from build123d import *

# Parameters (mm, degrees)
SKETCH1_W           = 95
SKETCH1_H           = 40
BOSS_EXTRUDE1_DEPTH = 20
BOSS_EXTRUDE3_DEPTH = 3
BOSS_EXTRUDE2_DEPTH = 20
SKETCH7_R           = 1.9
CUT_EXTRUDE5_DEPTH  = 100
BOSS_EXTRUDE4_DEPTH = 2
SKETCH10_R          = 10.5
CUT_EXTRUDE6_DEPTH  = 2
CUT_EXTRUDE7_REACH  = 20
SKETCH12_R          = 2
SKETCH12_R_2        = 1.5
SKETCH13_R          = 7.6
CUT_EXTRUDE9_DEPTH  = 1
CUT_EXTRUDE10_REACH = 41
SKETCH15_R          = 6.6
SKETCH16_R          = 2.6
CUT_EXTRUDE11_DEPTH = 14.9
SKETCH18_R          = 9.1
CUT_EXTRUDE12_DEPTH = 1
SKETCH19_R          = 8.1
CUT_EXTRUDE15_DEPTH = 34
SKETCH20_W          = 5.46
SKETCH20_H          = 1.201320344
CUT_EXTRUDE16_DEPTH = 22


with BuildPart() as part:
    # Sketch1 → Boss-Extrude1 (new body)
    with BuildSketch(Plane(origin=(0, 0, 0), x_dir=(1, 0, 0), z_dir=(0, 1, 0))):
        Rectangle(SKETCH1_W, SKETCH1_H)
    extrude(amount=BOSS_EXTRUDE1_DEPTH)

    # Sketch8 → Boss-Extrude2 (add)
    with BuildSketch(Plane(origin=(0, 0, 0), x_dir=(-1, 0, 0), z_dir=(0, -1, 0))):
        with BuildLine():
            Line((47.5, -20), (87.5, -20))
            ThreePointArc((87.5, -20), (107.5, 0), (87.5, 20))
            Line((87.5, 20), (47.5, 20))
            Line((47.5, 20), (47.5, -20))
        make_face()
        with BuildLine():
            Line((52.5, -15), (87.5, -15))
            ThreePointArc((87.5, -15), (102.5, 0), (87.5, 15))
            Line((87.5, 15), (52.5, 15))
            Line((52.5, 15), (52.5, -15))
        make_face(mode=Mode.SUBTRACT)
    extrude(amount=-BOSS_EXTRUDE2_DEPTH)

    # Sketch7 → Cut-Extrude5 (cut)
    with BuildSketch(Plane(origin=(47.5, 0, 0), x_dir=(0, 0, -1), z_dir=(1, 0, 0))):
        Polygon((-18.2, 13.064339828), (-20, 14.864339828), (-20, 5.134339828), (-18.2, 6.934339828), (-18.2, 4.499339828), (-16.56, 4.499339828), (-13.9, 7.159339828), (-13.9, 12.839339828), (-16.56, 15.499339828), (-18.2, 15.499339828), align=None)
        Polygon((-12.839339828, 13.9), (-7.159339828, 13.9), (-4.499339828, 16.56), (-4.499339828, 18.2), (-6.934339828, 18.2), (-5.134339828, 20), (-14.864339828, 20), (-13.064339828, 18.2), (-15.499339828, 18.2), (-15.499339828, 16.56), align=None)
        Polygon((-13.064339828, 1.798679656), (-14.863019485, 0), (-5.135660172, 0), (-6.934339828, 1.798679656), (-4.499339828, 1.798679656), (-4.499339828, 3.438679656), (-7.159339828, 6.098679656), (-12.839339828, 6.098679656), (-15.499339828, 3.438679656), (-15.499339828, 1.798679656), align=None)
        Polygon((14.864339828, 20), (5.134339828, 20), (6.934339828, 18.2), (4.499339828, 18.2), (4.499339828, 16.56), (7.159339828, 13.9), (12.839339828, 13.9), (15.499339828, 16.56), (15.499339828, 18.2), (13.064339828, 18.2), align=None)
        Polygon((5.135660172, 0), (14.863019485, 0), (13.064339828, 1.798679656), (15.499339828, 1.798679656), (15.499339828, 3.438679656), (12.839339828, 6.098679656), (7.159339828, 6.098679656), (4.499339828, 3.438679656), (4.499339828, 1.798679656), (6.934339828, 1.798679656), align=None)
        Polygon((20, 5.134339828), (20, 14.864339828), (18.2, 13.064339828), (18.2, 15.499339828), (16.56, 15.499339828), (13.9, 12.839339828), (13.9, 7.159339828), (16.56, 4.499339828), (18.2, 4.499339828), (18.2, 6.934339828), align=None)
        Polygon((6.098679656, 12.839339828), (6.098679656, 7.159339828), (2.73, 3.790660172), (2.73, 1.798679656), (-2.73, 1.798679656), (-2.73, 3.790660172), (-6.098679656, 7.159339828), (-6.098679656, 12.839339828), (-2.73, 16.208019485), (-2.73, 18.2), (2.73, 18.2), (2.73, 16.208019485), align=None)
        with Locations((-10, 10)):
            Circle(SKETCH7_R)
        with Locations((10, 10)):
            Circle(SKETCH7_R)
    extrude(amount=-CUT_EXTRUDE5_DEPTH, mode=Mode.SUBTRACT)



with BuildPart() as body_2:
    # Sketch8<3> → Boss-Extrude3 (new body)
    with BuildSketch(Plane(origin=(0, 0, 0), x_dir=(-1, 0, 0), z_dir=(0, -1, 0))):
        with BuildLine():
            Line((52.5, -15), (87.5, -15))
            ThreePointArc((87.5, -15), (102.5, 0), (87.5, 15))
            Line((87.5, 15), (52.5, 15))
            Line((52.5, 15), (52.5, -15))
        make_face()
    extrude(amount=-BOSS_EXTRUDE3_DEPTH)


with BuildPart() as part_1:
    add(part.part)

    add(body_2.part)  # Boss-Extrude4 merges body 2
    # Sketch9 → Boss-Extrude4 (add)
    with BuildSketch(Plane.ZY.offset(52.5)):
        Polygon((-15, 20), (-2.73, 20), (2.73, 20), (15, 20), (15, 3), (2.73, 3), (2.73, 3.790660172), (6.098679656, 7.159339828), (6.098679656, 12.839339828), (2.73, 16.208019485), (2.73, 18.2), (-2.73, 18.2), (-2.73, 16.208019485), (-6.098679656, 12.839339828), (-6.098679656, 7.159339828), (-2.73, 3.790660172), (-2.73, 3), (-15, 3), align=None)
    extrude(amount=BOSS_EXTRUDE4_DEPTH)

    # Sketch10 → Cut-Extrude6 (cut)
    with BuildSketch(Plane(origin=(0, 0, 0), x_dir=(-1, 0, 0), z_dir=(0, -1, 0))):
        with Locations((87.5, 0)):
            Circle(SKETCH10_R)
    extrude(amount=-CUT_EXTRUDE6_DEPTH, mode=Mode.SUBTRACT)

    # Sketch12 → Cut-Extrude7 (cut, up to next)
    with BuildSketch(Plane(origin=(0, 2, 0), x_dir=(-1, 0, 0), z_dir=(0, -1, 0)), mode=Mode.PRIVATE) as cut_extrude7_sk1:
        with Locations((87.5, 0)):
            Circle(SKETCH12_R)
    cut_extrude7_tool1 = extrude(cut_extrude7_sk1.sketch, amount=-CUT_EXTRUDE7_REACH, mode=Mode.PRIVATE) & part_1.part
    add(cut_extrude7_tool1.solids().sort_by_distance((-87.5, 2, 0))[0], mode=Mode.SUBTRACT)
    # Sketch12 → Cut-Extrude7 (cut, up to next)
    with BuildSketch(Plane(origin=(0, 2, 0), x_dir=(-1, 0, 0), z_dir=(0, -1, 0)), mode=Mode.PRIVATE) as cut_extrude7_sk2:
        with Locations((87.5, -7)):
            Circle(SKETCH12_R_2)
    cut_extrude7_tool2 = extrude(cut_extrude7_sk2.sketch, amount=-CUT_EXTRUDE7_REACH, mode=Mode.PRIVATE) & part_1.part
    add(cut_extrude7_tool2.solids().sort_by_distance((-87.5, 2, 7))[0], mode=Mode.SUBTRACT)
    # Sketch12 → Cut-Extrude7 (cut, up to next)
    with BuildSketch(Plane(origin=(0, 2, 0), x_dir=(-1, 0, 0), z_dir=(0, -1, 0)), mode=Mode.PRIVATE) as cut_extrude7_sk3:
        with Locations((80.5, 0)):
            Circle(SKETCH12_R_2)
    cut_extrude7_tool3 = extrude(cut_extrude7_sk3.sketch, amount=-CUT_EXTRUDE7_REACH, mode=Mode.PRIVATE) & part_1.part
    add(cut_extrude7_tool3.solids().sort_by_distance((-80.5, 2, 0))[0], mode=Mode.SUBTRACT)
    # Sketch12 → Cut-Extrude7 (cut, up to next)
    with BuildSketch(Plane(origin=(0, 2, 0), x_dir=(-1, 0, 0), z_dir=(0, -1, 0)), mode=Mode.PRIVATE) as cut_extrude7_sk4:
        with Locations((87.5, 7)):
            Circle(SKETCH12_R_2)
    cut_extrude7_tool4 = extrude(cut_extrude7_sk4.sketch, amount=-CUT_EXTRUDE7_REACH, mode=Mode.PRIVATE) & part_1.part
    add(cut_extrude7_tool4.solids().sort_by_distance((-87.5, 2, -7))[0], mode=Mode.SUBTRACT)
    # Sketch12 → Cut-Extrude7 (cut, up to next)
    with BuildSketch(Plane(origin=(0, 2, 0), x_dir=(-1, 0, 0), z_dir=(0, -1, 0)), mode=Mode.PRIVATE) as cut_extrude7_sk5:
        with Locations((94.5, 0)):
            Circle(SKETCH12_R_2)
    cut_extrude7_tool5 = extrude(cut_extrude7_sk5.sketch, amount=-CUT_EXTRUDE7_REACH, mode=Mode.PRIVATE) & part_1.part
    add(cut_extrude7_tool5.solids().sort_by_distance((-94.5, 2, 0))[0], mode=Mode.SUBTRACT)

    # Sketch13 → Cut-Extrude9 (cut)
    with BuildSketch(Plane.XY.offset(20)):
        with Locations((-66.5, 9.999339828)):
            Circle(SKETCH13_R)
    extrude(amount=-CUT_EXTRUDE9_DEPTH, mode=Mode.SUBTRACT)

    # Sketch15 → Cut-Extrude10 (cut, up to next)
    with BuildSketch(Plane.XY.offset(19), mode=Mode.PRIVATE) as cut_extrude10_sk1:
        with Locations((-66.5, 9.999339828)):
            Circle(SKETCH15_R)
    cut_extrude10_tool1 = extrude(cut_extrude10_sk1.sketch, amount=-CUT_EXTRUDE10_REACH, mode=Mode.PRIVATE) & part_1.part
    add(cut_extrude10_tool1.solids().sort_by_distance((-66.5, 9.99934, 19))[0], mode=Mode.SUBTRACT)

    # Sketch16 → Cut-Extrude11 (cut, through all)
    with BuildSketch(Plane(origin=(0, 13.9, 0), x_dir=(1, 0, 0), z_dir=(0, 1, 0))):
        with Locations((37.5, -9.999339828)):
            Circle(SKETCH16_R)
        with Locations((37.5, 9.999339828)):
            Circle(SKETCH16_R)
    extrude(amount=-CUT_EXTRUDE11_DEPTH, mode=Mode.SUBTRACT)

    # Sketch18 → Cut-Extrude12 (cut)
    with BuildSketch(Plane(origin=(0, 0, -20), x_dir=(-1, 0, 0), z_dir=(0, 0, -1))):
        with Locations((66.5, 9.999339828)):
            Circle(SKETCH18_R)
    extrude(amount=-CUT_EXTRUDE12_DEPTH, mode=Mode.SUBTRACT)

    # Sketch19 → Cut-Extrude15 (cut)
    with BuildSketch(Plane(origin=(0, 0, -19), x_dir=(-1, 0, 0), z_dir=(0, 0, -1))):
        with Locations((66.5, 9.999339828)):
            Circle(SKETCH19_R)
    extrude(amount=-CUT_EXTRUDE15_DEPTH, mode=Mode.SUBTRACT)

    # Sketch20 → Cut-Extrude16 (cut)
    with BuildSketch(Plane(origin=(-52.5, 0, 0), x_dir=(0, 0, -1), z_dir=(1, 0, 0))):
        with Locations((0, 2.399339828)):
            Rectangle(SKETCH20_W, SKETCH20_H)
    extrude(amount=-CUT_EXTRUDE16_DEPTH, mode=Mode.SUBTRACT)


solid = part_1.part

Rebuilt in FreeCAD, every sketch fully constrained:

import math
import FreeCAD as App
import Part
import Sketcher
Q = App.Units.Quantity

doc = App.newDocument("Part")
body = doc.addObject("PartDesign::Body", "Body")

sketch1 = body.newObject("Sketcher::SketchObject", "Sketch")
sketch1.AttachmentSupport = (doc.getObject("XZ_Plane"), [""])
sketch1.MapMode = "FlatFace"
sketch1.addGeometry(Part.LineSegment(App.Vector(-48, -20, 0), App.Vector(-48, 20, 0)), False)
sketch1.addGeometry(Part.LineSegment(App.Vector(-48, 20, 0), App.Vector(48, 20, 0)), False)
sketch1.addGeometry(Part.LineSegment(App.Vector(48, 20, 0), App.Vector(48, -20, 0)), False)
sketch1.addGeometry(Part.LineSegment(App.Vector(48, -20, 0), App.Vector(-48, -20, 0)), False)
sketch1.addConstraint(Sketcher.Constraint("Coincident", 0, 2, 1, 1))
sketch1.addConstraint(Sketcher.Constraint("Coincident", 1, 2, 2, 1))
sketch1.addConstraint(Sketcher.Constraint("Coincident", 2, 2, 3, 1))
sketch1.addConstraint(Sketcher.Constraint("Coincident", 3, 2, 0, 1))
sketch1.addConstraint(Sketcher.Constraint("Vertical", 0))
sketch1.addConstraint(Sketcher.Constraint("Horizontal", 1))
sketch1.addConstraint(Sketcher.Constraint("Vertical", 2))
sketch1.addConstraint(Sketcher.Constraint("Horizontal", 3))
sketch1.addConstraint(Sketcher.Constraint("Symmetric", 0, 2, 2, 2, -1, 1))
sketch1.addConstraint(Sketcher.Constraint("DistanceX", 1, 1, 1, 2, Q("95 mm")))
sketch1.addConstraint(Sketcher.Constraint("DistanceY", 0, 1, 0, 2, Q("40 mm")))
pad1 = body.newObject("PartDesign::Pad", "Pad")
pad1.Profile = sketch1
pad1.Length = 20
pad1.Reversed = True

sketch2 = body.newObject("Sketcher::SketchObject", "Sketch001")
sketch2.AttachmentSupport = (doc.getObject("XZ_Plane"), [""])
sketch2.MapMode = "FlatFace"
sketch2.addGeometry(Part.LineSegment(App.Vector(-48, 20, 0), App.Vector(-88, 20, 0)), False)
sketch2.addGeometry(Part.ArcOfCircle(Part.Circle(App.Vector(-88, 0, 0), App.Vector(0, 0, 1), 20), math.radians(90), math.radians(270)), False)
sketch2.addGeometry(Part.LineSegment(App.Vector(-88, -20, 0), App.Vector(-48, -20, 0)), False)
sketch2.addGeometry(Part.LineSegment(App.Vector(-48, -20, 0), App.Vector(-48, 20, 0)), False)
sketch2.addGeometry(Part.LineSegment(App.Vector(-88, 15, 0), App.Vector(-52, 15, 0)), False)
sketch2.addGeometry(Part.LineSegment(App.Vector(-52, 15, 0), App.Vector(-52, -15, 0)), False)
sketch2.addGeometry(Part.LineSegment(App.Vector(-52, -15, 0), App.Vector(-88, -15, 0)), False)
sketch2.addGeometry(Part.ArcOfCircle(Part.Circle(App.Vector(-88, 0, 0), App.Vector(0, 0, 1), 15), math.radians(90), math.radians(270)), False)
sketch2.addConstraint(Sketcher.Constraint("Tangent", 0, 2, 1, 1))
sketch2.addConstraint(Sketcher.Constraint("Tangent", 1, 2, 2, 1))
sketch2.addConstraint(Sketcher.Constraint("Coincident", 2, 2, 3, 1))
sketch2.addConstraint(Sketcher.Constraint("Coincident", 3, 2, 0, 1))
sketch2.addConstraint(Sketcher.Constraint("Coincident", 4, 2, 5, 1))
sketch2.addConstraint(Sketcher.Constraint("Coincident", 5, 2, 6, 1))
sketch2.addConstraint(Sketcher.Constraint("Tangent", 6, 2, 7, 2))
sketch2.addConstraint(Sketcher.Constraint("Tangent", 7, 1, 4, 1))
sketch2.addConstraint(Sketcher.Constraint("Horizontal", 0))
sketch2.addConstraint(Sketcher.Constraint("Horizontal", 2))
sketch2.addConstraint(Sketcher.Constraint("Vertical", 3))
sketch2.addConstraint(Sketcher.Constraint("Horizontal", 4))
sketch2.addConstraint(Sketcher.Constraint("Vertical", 5))
sketch2.addConstraint(Sketcher.Constraint("Horizontal", 6))
sketch2.addConstraint(Sketcher.Constraint("Coincident", 7, 3, 1, 3))
sketch2.addConstraint(Sketcher.Constraint("PointOnObject", 1, 3, -1))
sketch2.addConstraint(Sketcher.Constraint("Equal", 2, 3))
sketch2.addConstraint(Sketcher.Constraint("Radius", 1, Q("20 mm")))
sketch2.addConstraint(Sketcher.Constraint("Radius", 7, Q("15 mm")))
sketch2.addConstraint(Sketcher.Constraint("DistanceX", 4, 1, 4, 2, Q("35 mm")))
sketch2.addConstraint(Sketcher.Constraint("DistanceX", 1, 3, -1, 1, Q("87.5 mm")))
pad2 = body.newObject("PartDesign::Pad", "Pad001")
pad2.Profile = sketch2
pad2.Length = 20
pad2.Reversed = True

sketch3 = body.newObject("Sketcher::SketchObject", "Sketch002")
sketch3.AttachmentSupport = (doc.getObject("YZ_Plane"), [""])
sketch3.MapMode = "FlatFace"
sketch3.AttachmentOffset = App.Placement(App.Vector(0, 0, 47.5), App.Rotation())
sketch3.addGeometry(Part.LineSegment(App.Vector(13.1, 18.2, 0), App.Vector(14.9, 20, 0)), False)
sketch3.addGeometry(Part.LineSegment(App.Vector(14.9, 20, 0), App.Vector(5.1, 20, 0)), False)
sketch3.addGeometry(Part.LineSegment(App.Vector(5.1, 20, 0), App.Vector(6.9, 18.2, 0)), False)
sketch3.addGeometry(Part.LineSegment(App.Vector(6.9, 18.2, 0), App.Vector(4.5, 18.2, 0)), False)
sketch3.addGeometry(Part.LineSegment(App.Vector(4.5, 18.2, 0), App.Vector(4.5, 16.6, 0)), False)
sketch3.addGeometry(Part.LineSegment(App.Vector(4.5, 16.6, 0), App.Vector(7.2, 13.9, 0)), False)
sketch3.addGeometry(Part.LineSegment(App.Vector(7.2, 13.9, 0), App.Vector(12.8, 13.9, 0)), False)
sketch3.addGeometry(Part.LineSegment(App.Vector(12.8, 13.9, 0), App.Vector(15.5, 16.6, 0)), False)
sketch3.addGeometry(Part.LineSegment(App.Vector(15.5, 16.6, 0), App.Vector(15.5, 18.2, 0)), False)
sketch3.addGeometry(Part.LineSegment(App.Vector(15.5, 18.2, 0), App.Vector(13.1, 18.2, 0)), False)
sketch3.addGeometry(Part.LineSegment(App.Vector(13.9, 12.8, 0), App.Vector(13.9, 7.2, 0)), False)
sketch3.addGeometry(Part.LineSegment(App.Vector(13.9, 7.2, 0), App.Vector(16.6, 4.5, 0)), False)
sketch3.addGeometry(Part.LineSegment(App.Vector(16.6, 4.5, 0), App.Vector(18.2, 4.5, 0)), False)
sketch3.addGeometry(Part.LineSegment(App.Vector(18.2, 4.5, 0), App.Vector(18.2, 6.9, 0)), False)
sketch3.addGeometry(Part.LineSegment(App.Vector(18.2, 6.9, 0), App.Vector(20, 5.1, 0)), False)
sketch3.addGeometry(Part.LineSegment(App.Vector(20, 5.1, 0), App.Vector(20, 14.9, 0)), False)
sketch3.addGeometry(Part.LineSegment(App.Vector(20, 14.9, 0), App.Vector(18.2, 13.1, 0)), False)
sketch3.addGeometry(Part.LineSegment(App.Vector(18.2, 13.1, 0), App.Vector(18.2, 15.5, 0)), False)
sketch3.addGeometry(Part.LineSegment(App.Vector(18.2, 15.5, 0), App.Vector(16.6, 15.5, 0)), False)
sketch3.addGeometry(Part.LineSegment(App.Vector(16.6, 15.5, 0), App.Vector(13.9, 12.8, 0)), False)
sketch3.addGeometry(Part.LineSegment(App.Vector(1.8, 13.1, 0), App.Vector(0, 14.9, 0)), False)
sketch3.addGeometry(Part.LineSegment(App.Vector(0, 14.9, 0), App.Vector(0, 5.1, 0)), False)
sketch3.addGeometry(Part.LineSegment(App.Vector(0, 5.1, 0), App.Vector(1.8, 6.9, 0)), False)
sketch3.addGeometry(Part.LineSegment(App.Vector(1.8, 6.9, 0), App.Vector(1.8, 4.5, 0)), False)
sketch3.addGeometry(Part.LineSegment(App.Vector(1.8, 4.5, 0), App.Vector(3.4, 4.5, 0)), False)
sketch3.addGeometry(Part.LineSegment(App.Vector(3.4, 4.5, 0), App.Vector(6.1, 7.2, 0)), False)
sketch3.addGeometry(Part.LineSegment(App.Vector(6.1, 7.2, 0), App.Vector(6.1, 12.8, 0)), False)
sketch3.addGeometry(Part.LineSegment(App.Vector(6.1, 12.8, 0), App.Vector(3.4, 15.5, 0)), False)
sketch3.addGeometry(Part.LineSegment(App.Vector(3.4, 15.5, 0), App.Vector(1.8, 15.5, 0)), False)
sketch3.addGeometry(Part.LineSegment(App.Vector(1.8, 15.5, 0), App.Vector(1.8, 13.1, 0)), False)
sketch3.addGeometry(Part.LineSegment(App.Vector(20, -14.9, 0), App.Vector(20, -5.1, 0)), False)
sketch3.addGeometry(Part.LineSegment(App.Vector(20, -5.1, 0), App.Vector(18.2, -6.9, 0)), False)
sketch3.addGeometry(Part.LineSegment(App.Vector(18.2, -6.9, 0), App.Vector(18.2, -4.5, 0)), False)
sketch3.addGeometry(Part.LineSegment(App.Vector(18.2, -4.5, 0), App.Vector(16.6, -4.5, 0)), False)
sketch3.addGeometry(Part.LineSegment(App.Vector(16.6, -4.5, 0), App.Vector(13.9, -7.2, 0)), False)
sketch3.addGeometry(Part.LineSegment(App.Vector(13.9, -7.2, 0), App.Vector(13.9, -12.8, 0)), False)
sketch3.addGeometry(Part.LineSegment(App.Vector(13.9, -12.8, 0), App.Vector(16.6, -15.5, 0)), False)
sketch3.addGeometry(Part.LineSegment(App.Vector(16.6, -15.5, 0), App.Vector(18.2, -15.5, 0)), False)
sketch3.addGeometry(Part.LineSegment(App.Vector(18.2, -15.5, 0), App.Vector(18.2, -13.1, 0)), False)
sketch3.addGeometry(Part.LineSegment(App.Vector(18.2, -13.1, 0), App.Vector(20, -14.9, 0)), False)
sketch3.addGeometry(Part.LineSegment(App.Vector(0, -5.1, 0), App.Vector(0, -14.9, 0)), False)
sketch3.addGeometry(Part.LineSegment(App.Vector(0, -14.9, 0), App.Vector(1.8, -13.1, 0)), False)
sketch3.addGeometry(Part.LineSegment(App.Vector(1.8, -13.1, 0), App.Vector(1.8, -15.5, 0)), False)
sketch3.addGeometry(Part.LineSegment(App.Vector(1.8, -15.5, 0), App.Vector(3.4, -15.5, 0)), False)
sketch3.addGeometry(Part.LineSegment(App.Vector(3.4, -15.5, 0), App.Vector(6.1, -12.8, 0)), False)
sketch3.addGeometry(Part.LineSegment(App.Vector(6.1, -12.8, 0), App.Vector(6.1, -7.2, 0)), False)
sketch3.addGeometry(Part.LineSegment(App.Vector(6.1, -7.2, 0), App.Vector(3.4, -4.5, 0)), False)
sketch3.addGeometry(Part.LineSegment(App.Vector(3.4, -4.5, 0), App.Vector(1.8, -4.5, 0)), False)
sketch3.addGeometry(Part.LineSegment(App.Vector(1.8, -4.5, 0), App.Vector(1.8, -6.9, 0)), False)
sketch3.addGeometry(Part.LineSegment(App.Vector(1.8, -6.9, 0), App.Vector(0, -5.1, 0)), False)
sketch3.addGeometry(Part.LineSegment(App.Vector(5.1, -20, 0), App.Vector(14.9, -20, 0)), False)
sketch3.addGeometry(Part.LineSegment(App.Vector(14.9, -20, 0), App.Vector(13.1, -18.2, 0)), False)
sketch3.addGeometry(Part.LineSegment(App.Vector(13.1, -18.2, 0), App.Vector(15.5, -18.2, 0)), False)
sketch3.addGeometry(Part.LineSegment(App.Vector(15.5, -18.2, 0), App.Vector(15.5, -16.6, 0)), False)
sketch3.addGeometry(Part.LineSegment(App.Vector(15.5, -16.6, 0), App.Vector(12.8, -13.9, 0)), False)
sketch3.addGeometry(Part.LineSegment(App.Vector(12.8, -13.9, 0), App.Vector(7.2, -13.9, 0)), False)
sketch3.addGeometry(Part.LineSegment(App.Vector(7.2, -13.9, 0), App.Vector(4.5, -16.6, 0)), False)
sketch3.addGeometry(Part.LineSegment(App.Vector(4.5, -16.6, 0), App.Vector(4.5, -18.2, 0)), False)
sketch3.addGeometry(Part.LineSegment(App.Vector(4.5, -18.2, 0), App.Vector(6.9, -18.2, 0)), False)
sketch3.addGeometry(Part.LineSegment(App.Vector(6.9, -18.2, 0), App.Vector(5.1, -20, 0)), False)
sketch3.addGeometry(Part.LineSegment(App.Vector(7.2, -6.1, 0), App.Vector(12.8, -6.1, 0)), False)
sketch3.addGeometry(Part.LineSegment(App.Vector(12.8, -6.1, 0), App.Vector(16.2, -2.7, 0)), False)
sketch3.addGeometry(Part.LineSegment(App.Vector(16.2, -2.7, 0), App.Vector(18.2, -2.7, 0)), False)
sketch3.addGeometry(Part.LineSegment(App.Vector(18.2, -2.7, 0), App.Vector(18.2, 2.7, 0)), False)
sketch3.addGeometry(Part.LineSegment(App.Vector(18.2, 2.7, 0), App.Vector(16.2, 2.7, 0)), False)
sketch3.addGeometry(Part.LineSegment(App.Vector(16.2, 2.7, 0), App.Vector(12.8, 6.1, 0)), False)
sketch3.addGeometry(Part.LineSegment(App.Vector(12.8, 6.1, 0), App.Vector(7.2, 6.1, 0)), False)
sketch3.addGeometry(Part.LineSegment(App.Vector(7.2, 6.1, 0), App.Vector(3.8, 2.7, 0)), False)
sketch3.addGeometry(Part.LineSegment(App.Vector(3.8, 2.7, 0), App.Vector(1.8, 2.7, 0)), False)
sketch3.addGeometry(Part.LineSegment(App.Vector(1.8, 2.7, 0), App.Vector(1.8, -2.7, 0)), False)
sketch3.addGeometry(Part.LineSegment(App.Vector(1.8, -2.7, 0), App.Vector(3.8, -2.7, 0)), False)
sketch3.addGeometry(Part.LineSegment(App.Vector(3.8, -2.7, 0), App.Vector(7.2, -6.1, 0)), False)
sketch3.addGeometry(Part.Circle(App.Vector(10, 10, 0), App.Vector(0, 0, 1), 1.9), False)
sketch3.addGeometry(Part.Circle(App.Vector(10, -10, 0), App.Vector(0, 0, 1), 1.9), False)
sketch3.addConstraint(Sketcher.Constraint("Coincident", 0, 2, 1, 1))
sketch3.addConstraint(Sketcher.Constraint("Coincident", 1, 2, 2, 1))
sketch3.addConstraint(Sketcher.Constraint("Coincident", 2, 2, 3, 1))
sketch3.addConstraint(Sketcher.Constraint("Coincident", 3, 2, 4, 1))
sketch3.addConstraint(Sketcher.Constraint("Coincident", 4, 2, 5, 1))
sketch3.addConstraint(Sketcher.Constraint("Coincident", 5, 2, 6, 1))
sketch3.addConstraint(Sketcher.Constraint("Coincident", 6, 2, 7, 1))
sketch3.addConstraint(Sketcher.Constraint("Coincident", 7, 2, 8, 1))
sketch3.addConstraint(Sketcher.Constraint("Coincident", 8, 2, 9, 1))
sketch3.addConstraint(Sketcher.Constraint("Coincident", 9, 2, 0, 1))
sketch3.addConstraint(Sketcher.Constraint("Coincident", 10, 2, 11, 1))
sketch3.addConstraint(Sketcher.Constraint("Coincident", 11, 2, 12, 1))
sketch3.addConstraint(Sketcher.Constraint("Coincident", 12, 2, 13, 1))
sketch3.addConstraint(Sketcher.Constraint("Coincident", 13, 2, 14, 1))
sketch3.addConstraint(Sketcher.Constraint("Coincident", 14, 2, 15, 1))
sketch3.addConstraint(Sketcher.Constraint("Coincident", 15, 2, 16, 1))
sketch3.addConstraint(Sketcher.Constraint("Coincident", 16, 2, 17, 1))
sketch3.addConstraint(Sketcher.Constraint("Coincident", 17, 2, 18, 1))
sketch3.addConstraint(Sketcher.Constraint("Coincident", 18, 2, 19, 1))
sketch3.addConstraint(Sketcher.Constraint("Coincident", 19, 2, 10, 1))
sketch3.addConstraint(Sketcher.Constraint("Coincident", 20, 2, 21, 1))
sketch3.addConstraint(Sketcher.Constraint("Coincident", 21, 2, 22, 1))
sketch3.addConstraint(Sketcher.Constraint("Coincident", 22, 2, 23, 1))
sketch3.addConstraint(Sketcher.Constraint("Coincident", 23, 2, 24, 1))
sketch3.addConstraint(Sketcher.Constraint("Coincident", 24, 2, 25, 1))
sketch3.addConstraint(Sketcher.Constraint("Coincident", 25, 2, 26, 1))
sketch3.addConstraint(Sketcher.Constraint("Coincident", 26, 2, 27, 1))
sketch3.addConstraint(Sketcher.Constraint("Coincident", 27, 2, 28, 1))
sketch3.addConstraint(Sketcher.Constraint("Coincident", 28, 2, 29, 1))
sketch3.addConstraint(Sketcher.Constraint("Coincident", 29, 2, 20, 1))
sketch3.addConstraint(Sketcher.Constraint("Coincident", 30, 2, 31, 1))
sketch3.addConstraint(Sketcher.Constraint("Coincident", 31, 2, 32, 1))
sketch3.addConstraint(Sketcher.Constraint("Coincident", 32, 2, 33, 1))
sketch3.addConstraint(Sketcher.Constraint("Coincident", 33, 2, 34, 1))
sketch3.addConstraint(Sketcher.Constraint("Coincident", 34, 2, 35, 1))
sketch3.addConstraint(Sketcher.Constraint("Coincident", 35, 2, 36, 1))
sketch3.addConstraint(Sketcher.Constraint("Coincident", 36, 2, 37, 1))
sketch3.addConstraint(Sketcher.Constraint("Coincident", 37, 2, 38, 1))
sketch3.addConstraint(Sketcher.Constraint("Coincident", 38, 2, 39, 1))
sketch3.addConstraint(Sketcher.Constraint("Coincident", 39, 2, 30, 1))
sketch3.addConstraint(Sketcher.Constraint("Coincident", 40, 2, 41, 1))
sketch3.addConstraint(Sketcher.Constraint("Coincident", 41, 2, 42, 1))
sketch3.addConstraint(Sketcher.Constraint("Coincident", 42, 2, 43, 1))
sketch3.addConstraint(Sketcher.Constraint("Coincident", 43, 2, 44, 1))
sketch3.addConstraint(Sketcher.Constraint("Coincident", 44, 2, 45, 1))
sketch3.addConstraint(Sketcher.Constraint("Coincident", 45, 2, 46, 1))
sketch3.addConstraint(Sketcher.Constraint("Coincident", 46, 2, 47, 1))
sketch3.addConstraint(Sketcher.Constraint("Coincident", 47, 2, 48, 1))
sketch3.addConstraint(Sketcher.Constraint("Coincident", 48, 2, 49, 1))
sketch3.addConstraint(Sketcher.Constraint("Coincident", 49, 2, 40, 1))
sketch3.addConstraint(Sketcher.Constraint("Coincident", 50, 2, 51, 1))
sketch3.addConstraint(Sketcher.Constraint("Coincident", 51, 2, 52, 1))
sketch3.addConstraint(Sketcher.Constraint("Coincident", 52, 2, 53, 1))
sketch3.addConstraint(Sketcher.Constraint("Coincident", 53, 2, 54, 1))
sketch3.addConstraint(Sketcher.Constraint("Coincident", 54, 2, 55, 1))
sketch3.addConstraint(Sketcher.Constraint("Coincident", 55, 2, 56, 1))
sketch3.addConstraint(Sketcher.Constraint("Coincident", 56, 2, 57, 1))
sketch3.addConstraint(Sketcher.Constraint("Coincident", 57, 2, 58, 1))
sketch3.addConstraint(Sketcher.Constraint("Coincident", 58, 2, 59, 1))
sketch3.addConstraint(Sketcher.Constraint("Coincident", 59, 2, 50, 1))
sketch3.addConstraint(Sketcher.Constraint("Coincident", 60, 2, 61, 1))
sketch3.addConstraint(Sketcher.Constraint("Coincident", 61, 2, 62, 1))
sketch3.addConstraint(Sketcher.Constraint("Coincident", 62, 2, 63, 1))
sketch3.addConstraint(Sketcher.Constraint("Coincident", 63, 2, 64, 1))
sketch3.addConstraint(Sketcher.Constraint("Coincident", 64, 2, 65, 1))
sketch3.addConstraint(Sketcher.Constraint("Coincident", 65, 2, 66, 1))
sketch3.addConstraint(Sketcher.Constraint("Coincident", 66, 2, 67, 1))
sketch3.addConstraint(Sketcher.Constraint("Coincident", 67, 2, 68, 1))
sketch3.addConstraint(Sketcher.Constraint("Coincident", 68, 2, 69, 1))
sketch3.addConstraint(Sketcher.Constraint("Coincident", 69, 2, 70, 1))
sketch3.addConstraint(Sketcher.Constraint("Coincident", 70, 2, 71, 1))
sketch3.addConstraint(Sketcher.Constraint("Coincident", 71, 2, 60, 1))
sketch3.addConstraint(Sketcher.Constraint("Horizontal", 1))
sketch3.addConstraint(Sketcher.Constraint("Horizontal", 3))
sketch3.addConstraint(Sketcher.Constraint("Vertical", 4))
sketch3.addConstraint(Sketcher.Constraint("Horizontal", 6))
sketch3.addConstraint(Sketcher.Constraint("Vertical", 8))
sketch3.addConstraint(Sketcher.Constraint("Horizontal", 9))
sketch3.addConstraint(Sketcher.Constraint("Vertical", 10))
sketch3.addConstraint(Sketcher.Constraint("Horizontal", 12))
sketch3.addConstraint(Sketcher.Constraint("Vertical", 13))
sketch3.addConstraint(Sketcher.Constraint("Vertical", 15))
sketch3.addConstraint(Sketcher.Constraint("Vertical", 17))
sketch3.addConstraint(Sketcher.Constraint("Horizontal", 18))
sketch3.addConstraint(Sketcher.Constraint("Vertical", 21))
sketch3.addConstraint(Sketcher.Constraint("Vertical", 23))
sketch3.addConstraint(Sketcher.Constraint("Horizontal", 24))
sketch3.addConstraint(Sketcher.Constraint("Vertical", 26))
sketch3.addConstraint(Sketcher.Constraint("Horizontal", 28))
sketch3.addConstraint(Sketcher.Constraint("Vertical", 29))
sketch3.addConstraint(Sketcher.Constraint("Vertical", 30))
sketch3.addConstraint(Sketcher.Constraint("Vertical", 32))
sketch3.addConstraint(Sketcher.Constraint("Horizontal", 33))
sketch3.addConstraint(Sketcher.Constraint("Vertical", 35))
sketch3.addConstraint(Sketcher.Constraint("Horizontal", 37))
sketch3.addConstraint(Sketcher.Constraint("Vertical", 38))
sketch3.addConstraint(Sketcher.Constraint("Vertical", 40))
sketch3.addConstraint(Sketcher.Constraint("Vertical", 42))
sketch3.addConstraint(Sketcher.Constraint("Horizontal", 43))
sketch3.addConstraint(Sketcher.Constraint("Vertical", 45))
sketch3.addConstraint(Sketcher.Constraint("Horizontal", 47))
sketch3.addConstraint(Sketcher.Constraint("Vertical", 48))
sketch3.addConstraint(Sketcher.Constraint("Horizontal", 50))
sketch3.addConstraint(Sketcher.Constraint("Horizontal", 52))
sketch3.addConstraint(Sketcher.Constraint("Vertical", 53))
sketch3.addConstraint(Sketcher.Constraint("Horizontal", 55))
sketch3.addConstraint(Sketcher.Constraint("Vertical", 57))
sketch3.addConstraint(Sketcher.Constraint("Horizontal", 58))
sketch3.addConstraint(Sketcher.Constraint("Horizontal", 60))
sketch3.addConstraint(Sketcher.Constraint("Horizontal", 62))
sketch3.addConstraint(Sketcher.Constraint("Vertical", 63))
sketch3.addConstraint(Sketcher.Constraint("Horizontal", 64))
sketch3.addConstraint(Sketcher.Constraint("Horizontal", 66))
sketch3.addConstraint(Sketcher.Constraint("Horizontal", 68))
sketch3.addConstraint(Sketcher.Constraint("Vertical", 69))
sketch3.addConstraint(Sketcher.Constraint("Horizontal", 70))
sketch3.addConstraint(Sketcher.Constraint("Equal", 72, 73))
sketch3.addConstraint(Sketcher.Constraint("Symmetric", 20, 2, 40, 2, -1, 1))
sketch3.addConstraint(Sketcher.Constraint("Symmetric", 72, 3, 73, 3, -1))
sketch3.addConstraint(Sketcher.Constraint("Symmetric", 14, 2, 30, 2, -1))
sketch3.addConstraint(Sketcher.Constraint("Symmetric", 13, 2, 31, 2, -1))
sketch3.addConstraint(Sketcher.Constraint("Symmetric", 11, 2, 33, 2, -1))
sketch3.addConstraint(Sketcher.Constraint("Symmetric", 10, 2, 34, 2, -1))
sketch3.addConstraint(Sketcher.Constraint("Symmetric", 18, 2, 36, 2, -1))
sketch3.addConstraint(Sketcher.Constraint("Symmetric", 16, 2, 38, 2, -1))
sketch3.addConstraint(Sketcher.Constraint("Symmetric", 29, 2, 41, 2, -1))
sketch3.addConstraint(Sketcher.Constraint("Symmetric", 27, 2, 43, 2, -1))
sketch3.addConstraint(Sketcher.Constraint("Symmetric", 26, 2, 44, 2, -1))
sketch3.addConstraint(Sketcher.Constraint("Symmetric", 24, 2, 46, 2, -1))
sketch3.addConstraint(Sketcher.Constraint("Symmetric", 22, 2, 48, 2, -1))
sketch3.addConstraint(Sketcher.Constraint("Symmetric", 21, 2, 49, 2, -1))
sketch3.addConstraint(Sketcher.Constraint("Symmetric", 0, 2, 50, 2, -1))
sketch3.addConstraint(Sketcher.Constraint("Symmetric", 9, 2, 51, 2, -1))
sketch3.addConstraint(Sketcher.Constraint("Symmetric", 7, 2, 53, 2, -1))
sketch3.addConstraint(Sketcher.Constraint("Symmetric", 6, 2, 54, 2, -1))
sketch3.addConstraint(Sketcher.Constraint("Symmetric", 4, 2, 56, 2, -1))
sketch3.addConstraint(Sketcher.Constraint("Symmetric", 2, 2, 58, 2, -1))
sketch3.addConstraint(Sketcher.Constraint("Symmetric", 61, 2, 64, 2, -1))
sketch3.addConstraint(Sketcher.Constraint("Symmetric", 60, 2, 65, 2, -1))
sketch3.addConstraint(Sketcher.Constraint("Symmetric", 67, 2, 70, 2, -1))
sketch3.addConstraint(Sketcher.Constraint("Perpendicular", 0, 2))
sketch3.addConstraint(Sketcher.Constraint("Parallel", 2, 5))
sketch3.addConstraint(Sketcher.Constraint("Perpendicular", 5, 7))
sketch3.addConstraint(Sketcher.Constraint("Perpendicular", 7, 11))
sketch3.addConstraint(Sketcher.Constraint("Parallel", 11, 14))
sketch3.addConstraint(Sketcher.Constraint("Perpendicular", 14, 16))
sketch3.addConstraint(Sketcher.Constraint("Parallel", 16, 19))
sketch3.addConstraint(Sketcher.Constraint("Perpendicular", 19, 20))
sketch3.addConstraint(Sketcher.Constraint("Perpendicular", 20, 22))
sketch3.addConstraint(Sketcher.Constraint("Parallel", 22, 25))
sketch3.addConstraint(Sketcher.Constraint("Perpendicular", 25, 27))
sketch3.addConstraint(Sketcher.Constraint("Perpendicular", 27, 31))
sketch3.addConstraint(Sketcher.Constraint("Perpendicular", 34, 36))
sketch3.addConstraint(Sketcher.Constraint("Parallel", 36, 39))
sketch3.addConstraint(Sketcher.Constraint("Perpendicular", 44, 46))
sketch3.addConstraint(Sketcher.Constraint("Perpendicular", 54, 56))
sketch3.addConstraint(Sketcher.Constraint("Parallel", 56, 59))
sketch3.addConstraint(Sketcher.Constraint("Parallel", 59, 61))
sketch3.addConstraint(Sketcher.Constraint("Perpendicular", 65, 67))
sketch3.addConstraint(Sketcher.Constraint("Perpendicular", 67, 71))
sketch3.addConstraint(Sketcher.Constraint("Horizontal", 4, 2, 7, 2))
sketch3.addConstraint(Sketcher.Constraint("Horizontal", 3, 2, 8, 2))
sketch3.addConstraint(Sketcher.Constraint("Horizontal", 13, 2, 22, 2))
sketch3.addConstraint(Sketcher.Constraint("Horizontal", 12, 2, 23, 2))
sketch3.addConstraint(Sketcher.Constraint("Horizontal", 10, 2, 25, 2))
sketch3.addConstraint(Sketcher.Constraint("Horizontal", 19, 2, 26, 2))
sketch3.addConstraint(Sketcher.Constraint("Horizontal", 18, 2, 27, 2))
sketch3.addConstraint(Sketcher.Constraint("Horizontal", 16, 2, 29, 2))
sketch3.addConstraint(Sketcher.Constraint("Horizontal", 64, 2, 67, 2))
sketch3.addConstraint(Sketcher.Constraint("Vertical", 13, 2, 16, 2))
sketch3.addConstraint(Sketcher.Constraint("Vertical", 11, 2, 18, 2))
sketch3.addConstraint(Sketcher.Constraint("Vertical", 23, 2, 28, 2))
sketch3.addConstraint(Sketcher.Constraint("Vertical", 54, 2, 60, 2))
sketch3.addConstraint(Sketcher.Constraint("Vertical", 38, 2, 62, 2))
sketch3.addConstraint(Sketcher.Constraint("Vertical", 55, 2, 66, 2))
sketch3.addConstraint(Sketcher.Constraint("Vertical", 48, 2, 68, 2))
sketch3.addConstraint(Sketcher.Constraint("Equal", 3, 9))
sketch3.addConstraint(Sketcher.Constraint("Equal", 18, 24))
sketch3.addConstraint(Sketcher.Constraint("Equal", 64, 68))
sketch3.addConstraint(Sketcher.Constraint("Equal", 47, 4))
sketch3.addConstraint(Sketcher.Constraint("Equal", 66, 10))
sketch3.addConstraint(Sketcher.Constraint("Equal", 58, 13))
sketch3.addConstraint(Sketcher.Constraint("Equal", 50, 15))
sketch3.addConstraint(Sketcher.Constraint("Equal", 13, 17))
sketch3.addConstraint(Sketcher.Constraint("Equal", 7, 11))
sketch3.addConstraint(Sketcher.Constraint("Diameter", 72, Q("3.8 mm")))
sketch3.addConstraint(Sketcher.Constraint("DistanceX", -1, 1, 72, 3, Q("10 mm")))
sketch3.addConstraint(Sketcher.Constraint("DistanceY", -1, 1, 72, 3, Q("10 mm")))
sketch3.addConstraint(Sketcher.Constraint("DistanceY", -1, 1, 0, 2, Q("20 mm")))
sketch3.addConstraint(Sketcher.Constraint("DistanceX", -1, 1, 14, 2, Q("20 mm")))
sketch3.addConstraint(Sketcher.Constraint("DistanceX", 1, 2, 1, 1, Q("9.73 mm")))
sketch3.addConstraint(Sketcher.Constraint("DistanceX", 6, 1, 6, 2, Q("5.68 mm")))
sketch3.addConstraint(Sketcher.Constraint("DistanceX", 12, 1, 12, 2, Q("1.64 mm")))
sketch3.addConstraint(Sketcher.Constraint("DistanceY", 63, 1, 63, 2, Q("5.46 mm")))
sketch3.addConstraint(Sketcher.Constraint("DistanceY", -1, 1, 2, 2, Q("18.2 mm")))
sketch3.addConstraint(Sketcher.Constraint("DistanceY", -1, 1, 5, 2, Q("13.9 mm")))
sketch3.addConstraint(Sketcher.Constraint("DistanceX", 62, 1, 62, 2, Q("1.991981 mm")))
sketch3.addConstraint(Sketcher.Constraint("DistanceY", 21, 2, 21, 1, Q("9.727359 mm")))
sketch3.addConstraint(Sketcher.Constraint("DistanceY", -1, 1, 10, 2, Q("7.15934 mm")))
pocket1 = body.newObject("PartDesign::Pocket", "Pocket")
pocket1.Profile = sketch3
pocket1.Length = 100
body2 = doc.addObject("PartDesign::Body", "Body001")

sketch4 = body2.newObject("Sketcher::SketchObject", "Sketch003")
sketch4.AttachmentSupport = (doc.getObject("XZ_Plane001"), [""])
sketch4.MapMode = "FlatFace"
sketch4.addGeometry(Part.LineSegment(App.Vector(-52, 15, 0), App.Vector(-88, 15, 0)), False)
sketch4.addGeometry(Part.ArcOfCircle(Part.Circle(App.Vector(-88, 0, 0), App.Vector(0, 0, 1), 15), math.radians(90), math.radians(270)), False)
sketch4.addGeometry(Part.LineSegment(App.Vector(-88, -15, 0), App.Vector(-52, -15, 0)), False)
sketch4.addGeometry(Part.LineSegment(App.Vector(-52, -15, 0), App.Vector(-52, 15, 0)), False)
sketch4.addConstraint(Sketcher.Constraint("Tangent", 0, 2, 1, 1))
sketch4.addConstraint(Sketcher.Constraint("Tangent", 1, 2, 2, 1))
sketch4.addConstraint(Sketcher.Constraint("Coincident", 2, 2, 3, 1))
sketch4.addConstraint(Sketcher.Constraint("Coincident", 3, 2, 0, 1))
sketch4.addConstraint(Sketcher.Constraint("Horizontal", 0))
sketch4.addConstraint(Sketcher.Constraint("Horizontal", 2))
sketch4.addConstraint(Sketcher.Constraint("Vertical", 3))
sketch4.addConstraint(Sketcher.Constraint("PointOnObject", 1, 3, -1))
sketch4.addConstraint(Sketcher.Constraint("Radius", 1, Q("15 mm")))
sketch4.addConstraint(Sketcher.Constraint("DistanceX", 0, 2, 0, 1, Q("35 mm")))
sketch4.addConstraint(Sketcher.Constraint("DistanceX", 1, 3, -1, 1, Q("87.5 mm")))
pad3 = body2.newObject("PartDesign::Pad", "Pad002")
pad3.Profile = sketch4
pad3.Length = 3
pad3.Reversed = True
doc.recompute()

boolean = body.newObject("PartDesign::Boolean", "Boolean")
boolean.Type = "Fuse"
boolean.addObjects([body2])

sketch5 = body.newObject("Sketcher::SketchObject", "Sketch004")
sketch5.AttachmentSupport = (doc.getObject("YZ_Plane"), [""])
sketch5.MapMode = "FlatFace"
sketch5.AttachmentOffset = App.Placement(App.Vector(0, 0, -52.5), App.Rotation())
sketch5.addGeometry(Part.LineSegment(App.Vector(20, 15, 0), App.Vector(20, -15, 0)), False)
sketch5.addGeometry(Part.LineSegment(App.Vector(20, -15, 0), App.Vector(3, -15, 0)), False)
sketch5.addGeometry(Part.LineSegment(App.Vector(3, -15, 0), App.Vector(3, -2.7, 0)), False)
sketch5.addGeometry(Part.LineSegment(App.Vector(3, -2.7, 0), App.Vector(3.8, -2.7, 0)), False)
sketch5.addGeometry(Part.LineSegment(App.Vector(3.8, -2.7, 0), App.Vector(7.2, -6.1, 0)), False)
sketch5.addGeometry(Part.LineSegment(App.Vector(7.2, -6.1, 0), App.Vector(12.8, -6.1, 0)), False)
sketch5.addGeometry(Part.LineSegment(App.Vector(12.8, -6.1, 0), App.Vector(16.2, -2.7, 0)), False)
sketch5.addGeometry(Part.LineSegment(App.Vector(16.2, -2.7, 0), App.Vector(18.2, -2.7, 0)), False)
sketch5.addGeometry(Part.LineSegment(App.Vector(18.2, -2.7, 0), App.Vector(18.2, 2.7, 0)), False)
sketch5.addGeometry(Part.LineSegment(App.Vector(18.2, 2.7, 0), App.Vector(16.2, 2.7, 0)), False)
sketch5.addGeometry(Part.LineSegment(App.Vector(16.2, 2.7, 0), App.Vector(12.8, 6.1, 0)), False)
sketch5.addGeometry(Part.LineSegment(App.Vector(12.8, 6.1, 0), App.Vector(7.2, 6.1, 0)), False)
sketch5.addGeometry(Part.LineSegment(App.Vector(7.2, 6.1, 0), App.Vector(3.8, 2.7, 0)), False)
sketch5.addGeometry(Part.LineSegment(App.Vector(3.8, 2.7, 0), App.Vector(3, 2.7, 0)), False)
sketch5.addGeometry(Part.LineSegment(App.Vector(3, 2.7, 0), App.Vector(3, 15, 0)), False)
sketch5.addGeometry(Part.LineSegment(App.Vector(3, 15, 0), App.Vector(20, 15, 0)), False)
sketch5.addConstraint(Sketcher.Constraint("Coincident", 0, 2, 1, 1))
sketch5.addConstraint(Sketcher.Constraint("Coincident", 1, 2, 2, 1))
sketch5.addConstraint(Sketcher.Constraint("Coincident", 2, 2, 3, 1))
sketch5.addConstraint(Sketcher.Constraint("Coincident", 3, 2, 4, 1))
sketch5.addConstraint(Sketcher.Constraint("Coincident", 4, 2, 5, 1))
sketch5.addConstraint(Sketcher.Constraint("Coincident", 5, 2, 6, 1))
sketch5.addConstraint(Sketcher.Constraint("Coincident", 6, 2, 7, 1))
sketch5.addConstraint(Sketcher.Constraint("Coincident", 7, 2, 8, 1))
sketch5.addConstraint(Sketcher.Constraint("Coincident", 8, 2, 9, 1))
sketch5.addConstraint(Sketcher.Constraint("Coincident", 9, 2, 10, 1))
sketch5.addConstraint(Sketcher.Constraint("Coincident", 10, 2, 11, 1))
sketch5.addConstraint(Sketcher.Constraint("Coincident", 11, 2, 12, 1))
sketch5.addConstraint(Sketcher.Constraint("Coincident", 12, 2, 13, 1))
sketch5.addConstraint(Sketcher.Constraint("Coincident", 13, 2, 14, 1))
sketch5.addConstraint(Sketcher.Constraint("Coincident", 14, 2, 15, 1))
sketch5.addConstraint(Sketcher.Constraint("Coincident", 15, 2, 0, 1))
sketch5.addConstraint(Sketcher.Constraint("Vertical", 0))
sketch5.addConstraint(Sketcher.Constraint("Horizontal", 1))
sketch5.addConstraint(Sketcher.Constraint("Vertical", 2))
sketch5.addConstraint(Sketcher.Constraint("Horizontal", 3))
sketch5.addConstraint(Sketcher.Constraint("Horizontal", 5))
sketch5.addConstraint(Sketcher.Constraint("Horizontal", 7))
sketch5.addConstraint(Sketcher.Constraint("Vertical", 8))
sketch5.addConstraint(Sketcher.Constraint("Horizontal", 9))
sketch5.addConstraint(Sketcher.Constraint("Horizontal", 11))
sketch5.addConstraint(Sketcher.Constraint("Horizontal", 13))
sketch5.addConstraint(Sketcher.Constraint("Vertical", 14))
sketch5.addConstraint(Sketcher.Constraint("Horizontal", 15))
sketch5.addConstraint(Sketcher.Constraint("Symmetric", 6, 2, 9, 2, -1))
sketch5.addConstraint(Sketcher.Constraint("Symmetric", 5, 2, 10, 2, -1))
sketch5.addConstraint(Sketcher.Constraint("Symmetric", 3, 2, 12, 2, -1))
sketch5.addConstraint(Sketcher.Constraint("Symmetric", 1, 2, 14, 2, -1))
sketch5.addConstraint(Sketcher.Constraint("Perpendicular", 4, 6))
sketch5.addConstraint(Sketcher.Constraint("Perpendicular", 6, 10))
sketch5.addConstraint(Sketcher.Constraint("Perpendicular", 10, 12))
sketch5.addConstraint(Sketcher.Constraint("Horizontal", 3, 2, 6, 2))
sketch5.addConstraint(Sketcher.Constraint("DistanceX", 1, 2, 1, 1, Q("17 mm")))
sketch5.addConstraint(Sketcher.Constraint("DistanceY", 0, 2, 0, 1, Q("30 mm")))
sketch5.addConstraint(Sketcher.Constraint("DistanceX", -1, 1, 0, 2, Q("20 mm")))
sketch5.addConstraint(Sketcher.Constraint("DistanceX", 5, 1, 5, 2, Q("5.68 mm")))
sketch5.addConstraint(Sketcher.Constraint("DistanceY", 2, 1, 2, 2, Q("12.27 mm")))
sketch5.addConstraint(Sketcher.Constraint("DistanceX", -1, 1, 7, 2, Q("18.2 mm")))
sketch5.addConstraint(Sketcher.Constraint("DistanceX", 3, 1, 3, 2, Q("0.79066 mm")))
sketch5.addConstraint(Sketcher.Constraint("DistanceX", 7, 1, 7, 2, Q("1.991981 mm")))
pad4 = body.newObject("PartDesign::Pad", "Pad003")
pad4.Profile = sketch5
pad4.Length = 2
pad4.Reversed = True

sketch6 = body.newObject("Sketcher::SketchObject", "Sketch005")
sketch6.AttachmentSupport = (doc.getObject("XZ_Plane"), [""])
sketch6.MapMode = "FlatFace"
sketch6.addGeometry(Part.Circle(App.Vector(-88, 0, 0), App.Vector(0, 0, 1), 10), False)
sketch6.addConstraint(Sketcher.Constraint("PointOnObject", 0, 3, -1))
sketch6.addConstraint(Sketcher.Constraint("Diameter", 0, Q("21 mm")))
sketch6.addConstraint(Sketcher.Constraint("DistanceX", 0, 3, -1, 1, Q("87.5 mm")))
pocket2 = body.newObject("PartDesign::Pocket", "Pocket001")
pocket2.Profile = sketch6
pocket2.Length = 2

sketch7 = body.newObject("Sketcher::SketchObject", "Sketch006")
sketch7.AttachmentSupport = (doc.getObject("XZ_Plane"), [""])
sketch7.MapMode = "FlatFace"
sketch7.AttachmentOffset = App.Placement(App.Vector(0, 0, -2), App.Rotation())
sketch7.addGeometry(Part.Circle(App.Vector(-87.5, 0, 0), App.Vector(0, 0, 1), 2), False)
sketch7.addConstraint(Sketcher.Constraint("PointOnObject", 0, 3, -1))
sketch7.addConstraint(Sketcher.Constraint("Diameter", 0, Q("4 mm")))
sketch7.addConstraint(Sketcher.Constraint("DistanceX", 0, 3, -1, 1, Q("87.5 mm")))
pocket3 = body.newObject("PartDesign::Pocket", "Pocket002")
pocket3.Profile = sketch7
pocket3.Type = "UpToFirst"

sketch8 = body.newObject("Sketcher::SketchObject", "Sketch007")
sketch8.AttachmentSupport = (doc.getObject("XZ_Plane"), [""])
sketch8.MapMode = "FlatFace"
sketch8.AttachmentOffset = App.Placement(App.Vector(0, 0, -2), App.Rotation())
sketch8.addGeometry(Part.Circle(App.Vector(-87.5, 7, 0), App.Vector(0, 0, 1), 1.5), False)
sketch8.addConstraint(Sketcher.Constraint("Diameter", 0, Q("3 mm")))
sketch8.addConstraint(Sketcher.Constraint("DistanceY", -1, 1, 0, 3, Q("7 mm")))
sketch8.addConstraint(Sketcher.Constraint("DistanceX", 0, 3, -1, 1, Q("87.5 mm")))
pocket4 = body.newObject("PartDesign::Pocket", "Pocket003")
pocket4.Profile = sketch8
pocket4.Type = "UpToFirst"

sketch9 = body.newObject("Sketcher::SketchObject", "Sketch008")
sketch9.AttachmentSupport = (doc.getObject("XZ_Plane"), [""])
sketch9.MapMode = "FlatFace"
sketch9.AttachmentOffset = App.Placement(App.Vector(0, 0, -2), App.Rotation())
sketch9.addGeometry(Part.Circle(App.Vector(-80.5, 0, 0), App.Vector(0, 0, 1), 1.5), False)
sketch9.addConstraint(Sketcher.Constraint("PointOnObject", 0, 3, -1))
sketch9.addConstraint(Sketcher.Constraint("Diameter", 0, Q("3 mm")))
sketch9.addConstraint(Sketcher.Constraint("DistanceX", 0, 3, -1, 1, Q("80.5 mm")))
pocket5 = body.newObject("PartDesign::Pocket", "Pocket004")
pocket5.Profile = sketch9
pocket5.Type = "UpToFirst"

sketch10 = body.newObject("Sketcher::SketchObject", "Sketch009")
sketch10.AttachmentSupport = (doc.getObject("XZ_Plane"), [""])
sketch10.MapMode = "FlatFace"
sketch10.AttachmentOffset = App.Placement(App.Vector(0, 0, -2), App.Rotation())
sketch10.addGeometry(Part.Circle(App.Vector(-87.5, -7, 0), App.Vector(0, 0, 1), 1.5), False)
sketch10.addConstraint(Sketcher.Constraint("Diameter", 0, Q("3 mm")))
sketch10.addConstraint(Sketcher.Constraint("DistanceY", 0, 3, -1, 1, Q("7 mm")))
sketch10.addConstraint(Sketcher.Constraint("DistanceX", 0, 3, -1, 1, Q("87.5 mm")))
pocket6 = body.newObject("PartDesign::Pocket", "Pocket005")
pocket6.Profile = sketch10
pocket6.Type = "UpToFirst"

sketch11 = body.newObject("Sketcher::SketchObject", "Sketch010")
sketch11.AttachmentSupport = (doc.getObject("XZ_Plane"), [""])
sketch11.MapMode = "FlatFace"
sketch11.AttachmentOffset = App.Placement(App.Vector(0, 0, -2), App.Rotation())
sketch11.addGeometry(Part.Circle(App.Vector(-94.5, 0, 0), App.Vector(0, 0, 1), 1.5), False)
sketch11.addConstraint(Sketcher.Constraint("PointOnObject", 0, 3, -1))
sketch11.addConstraint(Sketcher.Constraint("Diameter", 0, Q("3 mm")))
sketch11.addConstraint(Sketcher.Constraint("DistanceX", 0, 3, -1, 1, Q("94.5 mm")))
pocket7 = body.newObject("PartDesign::Pocket", "Pocket006")
pocket7.Profile = sketch11
pocket7.Type = "UpToFirst"

sketch12 = body.newObject("Sketcher::SketchObject", "Sketch011")
sketch12.AttachmentSupport = (doc.getObject("XY_Plane"), [""])
sketch12.MapMode = "FlatFace"
sketch12.AttachmentOffset = App.Placement(App.Vector(0, 0, 20), App.Rotation())
sketch12.addGeometry(Part.Circle(App.Vector(-66, 10, 0), App.Vector(0, 0, 1), 8), False)
sketch12.addConstraint(Sketcher.Constraint("Diameter", 0, Q("15.2 mm")))
sketch12.addConstraint(Sketcher.Constraint("DistanceX", 0, 3, -1, 1, Q("66.5 mm")))
sketch12.addConstraint(Sketcher.Constraint("DistanceY", -1, 1, 0, 3, Q("9.99934 mm")))
pocket8 = body.newObject("PartDesign::Pocket", "Pocket007")
pocket8.Profile = sketch12
pocket8.Length = 1

sketch13 = body.newObject("Sketcher::SketchObject", "Sketch012")
sketch13.AttachmentSupport = (doc.getObject("XY_Plane"), [""])
sketch13.MapMode = "FlatFace"
sketch13.AttachmentOffset = App.Placement(App.Vector(0, 0, 19), App.Rotation())
sketch13.addGeometry(Part.Circle(App.Vector(-66, 10, 0), App.Vector(0, 0, 1), 7), False)
sketch13.addConstraint(Sketcher.Constraint("Diameter", 0, Q("13.2 mm")))
sketch13.addConstraint(Sketcher.Constraint("DistanceX", 0, 3, -1, 1, Q("66.5 mm")))
sketch13.addConstraint(Sketcher.Constraint("DistanceY", -1, 1, 0, 3, Q("9.99934 mm")))
pocket9 = body.newObject("PartDesign::Pocket", "Pocket008")
pocket9.Profile = sketch13
pocket9.Type = "UpToFirst"

sketch14 = body.newObject("Sketcher::SketchObject", "Sketch013")
sketch14.AttachmentSupport = (doc.getObject("XZ_Plane"), [""])
sketch14.MapMode = "FlatFace"
sketch14.AttachmentOffset = App.Placement(App.Vector(0, 0, -13.9), App.Rotation())
sketch14.addGeometry(Part.Circle(App.Vector(37.5, 10, 0), App.Vector(0, 0, 1), 2.6), False)
sketch14.addGeometry(Part.Circle(App.Vector(37.5, -10, 0), App.Vector(0, 0, 1), 2.6), False)
sketch14.addConstraint(Sketcher.Constraint("Equal", 0, 1))
sketch14.addConstraint(Sketcher.Constraint("Symmetric", 0, 3, 1, 3, -1))
sketch14.addConstraint(Sketcher.Constraint("Diameter", 0, Q("5.2 mm")))
sketch14.addConstraint(Sketcher.Constraint("DistanceX", -1, 1, 0, 3, Q("37.5 mm")))
sketch14.addConstraint(Sketcher.Constraint("DistanceY", -1, 1, 0, 3, Q("9.99934 mm")))
pocket10 = body.newObject("PartDesign::Pocket", "Pocket009")
pocket10.Profile = sketch14
pocket10.Type = "ThroughAll"
pocket10.Reversed = True

sketch15 = body.newObject("Sketcher::SketchObject", "Sketch014")
sketch15.AttachmentSupport = (doc.getObject("XY_Plane"), [""])
sketch15.MapMode = "FlatFace"
sketch15.AttachmentOffset = App.Placement(App.Vector(0, 0, -20), App.Rotation())
sketch15.addGeometry(Part.Circle(App.Vector(-66, 10, 0), App.Vector(0, 0, 1), 9), False)
sketch15.addConstraint(Sketcher.Constraint("Diameter", 0, Q("18.2 mm")))
sketch15.addConstraint(Sketcher.Constraint("DistanceX", 0, 3, -1, 1, Q("66.5 mm")))
sketch15.addConstraint(Sketcher.Constraint("DistanceY", -1, 1, 0, 3, Q("9.99934 mm")))
pocket11 = body.newObject("PartDesign::Pocket", "Pocket010")
pocket11.Profile = sketch15
pocket11.Length = 1
pocket11.Reversed = True

sketch16 = body.newObject("Sketcher::SketchObject", "Sketch015")
sketch16.AttachmentSupport = (doc.getObject("XY_Plane"), [""])
sketch16.MapMode = "FlatFace"
sketch16.AttachmentOffset = App.Placement(App.Vector(0, 0, -19), App.Rotation())
sketch16.addGeometry(Part.Circle(App.Vector(-66, 10, 0), App.Vector(0, 0, 1), 8), False)
sketch16.addConstraint(Sketcher.Constraint("Diameter", 0, Q("16.2 mm")))
sketch16.addConstraint(Sketcher.Constraint("DistanceX", 0, 3, -1, 1, Q("66.5 mm")))
sketch16.addConstraint(Sketcher.Constraint("DistanceY", -1, 1, 0, 3, Q("9.99934 mm")))
pocket12 = body.newObject("PartDesign::Pocket", "Pocket011")
pocket12.Profile = sketch16
pocket12.Length = 34
pocket12.Reversed = True

sketch17 = body.newObject("Sketcher::SketchObject", "Sketch016")
sketch17.AttachmentSupport = (doc.getObject("YZ_Plane"), [""])
sketch17.MapMode = "FlatFace"
sketch17.AttachmentOffset = App.Placement(App.Vector(0, 0, -52.5), App.Rotation())
sketch17.addGeometry(Part.LineSegment(App.Vector(3, 2.7, 0), App.Vector(1.8, 2.7, 0)), False)
sketch17.addGeometry(Part.LineSegment(App.Vector(1.8, 2.7, 0), App.Vector(1.8, -2.7, 0)), False)
sketch17.addGeometry(Part.LineSegment(App.Vector(1.8, -2.7, 0), App.Vector(3, -2.7, 0)), False)
sketch17.addGeometry(Part.LineSegment(App.Vector(3, -2.7, 0), App.Vector(3, 2.7, 0)), False)
sketch17.addConstraint(Sketcher.Constraint("Coincident", 0, 2, 1, 1))
sketch17.addConstraint(Sketcher.Constraint("Coincident", 1, 2, 2, 1))
sketch17.addConstraint(Sketcher.Constraint("Coincident", 2, 2, 3, 1))
sketch17.addConstraint(Sketcher.Constraint("Coincident", 3, 2, 0, 1))
sketch17.addConstraint(Sketcher.Constraint("Horizontal", 0))
sketch17.addConstraint(Sketcher.Constraint("Vertical", 1))
sketch17.addConstraint(Sketcher.Constraint("Horizontal", 2))
sketch17.addConstraint(Sketcher.Constraint("Vertical", 3))
sketch17.addConstraint(Sketcher.Constraint("DistanceX", -1, 1, 2, 2, Q("3 mm")))
sketch17.addConstraint(Sketcher.Constraint("DistanceY", 1, 2, 1, 1, Q("5.46 mm")))
sketch17.addConstraint(Sketcher.Constraint("DistanceY", -1, 1, 0, 2, Q("2.73 mm")))
sketch17.addConstraint(Sketcher.Constraint("DistanceX", 0, 2, 0, 1, Q("1.20132 mm")))
pocket13 = body.newObject("PartDesign::Pocket", "Pocket012")
pocket13.Profile = sketch17
pocket13.Length = 22

doc.recompute()
